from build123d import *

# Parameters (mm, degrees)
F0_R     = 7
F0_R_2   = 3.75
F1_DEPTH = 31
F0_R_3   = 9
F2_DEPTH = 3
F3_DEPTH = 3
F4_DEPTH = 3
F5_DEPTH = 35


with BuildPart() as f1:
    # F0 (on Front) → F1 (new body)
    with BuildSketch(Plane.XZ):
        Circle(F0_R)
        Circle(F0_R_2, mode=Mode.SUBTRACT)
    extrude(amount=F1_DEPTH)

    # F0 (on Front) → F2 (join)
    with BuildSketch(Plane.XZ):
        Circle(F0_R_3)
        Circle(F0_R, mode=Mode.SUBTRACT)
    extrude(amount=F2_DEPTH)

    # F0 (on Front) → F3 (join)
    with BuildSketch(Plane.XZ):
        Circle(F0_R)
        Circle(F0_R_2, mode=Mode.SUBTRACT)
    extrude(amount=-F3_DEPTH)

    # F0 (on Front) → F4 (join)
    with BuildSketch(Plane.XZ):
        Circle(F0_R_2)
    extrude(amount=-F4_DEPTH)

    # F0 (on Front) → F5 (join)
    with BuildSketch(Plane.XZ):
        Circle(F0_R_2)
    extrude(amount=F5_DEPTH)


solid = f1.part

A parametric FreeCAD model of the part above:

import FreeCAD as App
import Part
import Sketcher

V = App.Vector

doc = App.newDocument("Part")
body = doc.addObject("PartDesign::Body", "Body")

sketch1 = doc.addObject("Sketcher::SketchObject", "Sketch")
body.addObject(sketch1)
sketch1.AttachmentSupport = (doc.XZ_Plane, [""])
sketch1.MapMode = "FlatFace"
sketch1.addGeometry([
    Part.Circle(V(0, 0, 0), V(0, 0, 1), 7),
    Part.Circle(V(0, 0, 0), V(0, 0, 1), 3.8),
], False)
sketch1.addConstraint([
    Sketcher.Constraint("Coincident", 0, 3, -1, 1),
    Sketcher.Constraint("Coincident", 1, 3, -1, 1),
    Sketcher.Constraint("Diameter", 0, 14.0),
    Sketcher.Constraint("Diameter", 1, 7.5),
])
pad1 = doc.addObject("PartDesign::Pad", "Pad")
body.addObject(pad1)
pad1.Profile = sketch1
pad1.Length = 31

sketch2 = doc.addObject("Sketcher::SketchObject", "Sketch001")
body.addObject(sketch2)
sketch2.AttachmentSupport = (doc.XZ_Plane, [""])
sketch2.MapMode = "FlatFace"
sketch2.addGeometry([
    Part.Circle(V(0, 0, 0), V(0, 0, 1), 9),
    Part.Circle(V(0, 0, 0), V(0, 0, 1), 7),
], False)
sketch2.addConstraint([
    Sketcher.Constraint("Coincident", 0, 3, -1, 1),
    Sketcher.Constraint("Coincident", 1, 3, -1, 1),
    Sketcher.Constraint("Diameter", 0, 18.0),
    Sketcher.Constraint("Diameter", 1, 14.0),
])
pad2 = doc.addObject("PartDesign::Pad", "Pad001")
body.addObject(pad2)
pad2.Profile = sketch2
pad2.Length = 3

sketch3 = doc.addObject("Sketcher::SketchObject", "Sketch002")
body.addObject(sketch3)
sketch3.AttachmentSupport = (doc.XZ_Plane, [""])
sketch3.MapMode = "FlatFace"
sketch3.addGeometry([
    Part.Circle(V(0, 0, 0), V(0, 0, 1), 7),
    Part.Circle(V(0, 0, 0), V(0, 0, 1), 3.8),
], False)
sketch3.addConstraint([
    Sketcher.Constraint("Coincident", 0, 3, -1, 1),
    Sketcher.Constraint("Coincident", 1, 3, -1, 1),
    Sketcher.Constraint("Diameter", 0, 14.0),
    Sketcher.Constraint("Diameter", 1, 7.5),
])
pad3 = doc.addObject("PartDesign::Pad", "Pad002")
body.addObject(pad3)
pad3.Profile = sketch3
pad3.Length = 3
pad3.Reversed = True

sketch4 = doc.addObject("Sketcher::SketchObject", "Sketch003")
body.addObject(sketch4)
sketch4.AttachmentSupport = (doc.XZ_Plane, [""])
sketch4.MapMode = "FlatFace"
sketch4.addGeometry(Part.Circle(V(0, 0, 0), V(0, 0, 1), 3.8), False)
sketch4.addConstraint([
    Sketcher.Constraint("Coincident", 0, 3, -1, 1),
    Sketcher.Constraint("Diameter", 0, 7.5),
])
pad4 = doc.addObject("PartDesign::Pad", "Pad003")
body.addObject(pad4)
pad4.Profile = sketch4
pad4.Length = 3
pad4.Reversed = True

sketch5 = doc.addObject("Sketcher::SketchObject", "Sketch004")
body.addObject(sketch5)
sketch5.AttachmentSupport = (doc.XZ_Plane, [""])
sketch5.MapMode = "FlatFace"
sketch5.addGeometry(Part.Circle(V(0, 0, 0), V(0, 0, 1), 3.8), False)
sketch5.addConstraint([
    Sketcher.Constraint("Coincident", 0, 3, -1, 1),
    Sketcher.Constraint("Diameter", 0, 7.5),
])
pad5 = doc.addObject("PartDesign::Pad", "Pad004")
body.addObject(pad5)
pad5.Profile = sketch5
pad5.Length = 35

doc.recompute()
